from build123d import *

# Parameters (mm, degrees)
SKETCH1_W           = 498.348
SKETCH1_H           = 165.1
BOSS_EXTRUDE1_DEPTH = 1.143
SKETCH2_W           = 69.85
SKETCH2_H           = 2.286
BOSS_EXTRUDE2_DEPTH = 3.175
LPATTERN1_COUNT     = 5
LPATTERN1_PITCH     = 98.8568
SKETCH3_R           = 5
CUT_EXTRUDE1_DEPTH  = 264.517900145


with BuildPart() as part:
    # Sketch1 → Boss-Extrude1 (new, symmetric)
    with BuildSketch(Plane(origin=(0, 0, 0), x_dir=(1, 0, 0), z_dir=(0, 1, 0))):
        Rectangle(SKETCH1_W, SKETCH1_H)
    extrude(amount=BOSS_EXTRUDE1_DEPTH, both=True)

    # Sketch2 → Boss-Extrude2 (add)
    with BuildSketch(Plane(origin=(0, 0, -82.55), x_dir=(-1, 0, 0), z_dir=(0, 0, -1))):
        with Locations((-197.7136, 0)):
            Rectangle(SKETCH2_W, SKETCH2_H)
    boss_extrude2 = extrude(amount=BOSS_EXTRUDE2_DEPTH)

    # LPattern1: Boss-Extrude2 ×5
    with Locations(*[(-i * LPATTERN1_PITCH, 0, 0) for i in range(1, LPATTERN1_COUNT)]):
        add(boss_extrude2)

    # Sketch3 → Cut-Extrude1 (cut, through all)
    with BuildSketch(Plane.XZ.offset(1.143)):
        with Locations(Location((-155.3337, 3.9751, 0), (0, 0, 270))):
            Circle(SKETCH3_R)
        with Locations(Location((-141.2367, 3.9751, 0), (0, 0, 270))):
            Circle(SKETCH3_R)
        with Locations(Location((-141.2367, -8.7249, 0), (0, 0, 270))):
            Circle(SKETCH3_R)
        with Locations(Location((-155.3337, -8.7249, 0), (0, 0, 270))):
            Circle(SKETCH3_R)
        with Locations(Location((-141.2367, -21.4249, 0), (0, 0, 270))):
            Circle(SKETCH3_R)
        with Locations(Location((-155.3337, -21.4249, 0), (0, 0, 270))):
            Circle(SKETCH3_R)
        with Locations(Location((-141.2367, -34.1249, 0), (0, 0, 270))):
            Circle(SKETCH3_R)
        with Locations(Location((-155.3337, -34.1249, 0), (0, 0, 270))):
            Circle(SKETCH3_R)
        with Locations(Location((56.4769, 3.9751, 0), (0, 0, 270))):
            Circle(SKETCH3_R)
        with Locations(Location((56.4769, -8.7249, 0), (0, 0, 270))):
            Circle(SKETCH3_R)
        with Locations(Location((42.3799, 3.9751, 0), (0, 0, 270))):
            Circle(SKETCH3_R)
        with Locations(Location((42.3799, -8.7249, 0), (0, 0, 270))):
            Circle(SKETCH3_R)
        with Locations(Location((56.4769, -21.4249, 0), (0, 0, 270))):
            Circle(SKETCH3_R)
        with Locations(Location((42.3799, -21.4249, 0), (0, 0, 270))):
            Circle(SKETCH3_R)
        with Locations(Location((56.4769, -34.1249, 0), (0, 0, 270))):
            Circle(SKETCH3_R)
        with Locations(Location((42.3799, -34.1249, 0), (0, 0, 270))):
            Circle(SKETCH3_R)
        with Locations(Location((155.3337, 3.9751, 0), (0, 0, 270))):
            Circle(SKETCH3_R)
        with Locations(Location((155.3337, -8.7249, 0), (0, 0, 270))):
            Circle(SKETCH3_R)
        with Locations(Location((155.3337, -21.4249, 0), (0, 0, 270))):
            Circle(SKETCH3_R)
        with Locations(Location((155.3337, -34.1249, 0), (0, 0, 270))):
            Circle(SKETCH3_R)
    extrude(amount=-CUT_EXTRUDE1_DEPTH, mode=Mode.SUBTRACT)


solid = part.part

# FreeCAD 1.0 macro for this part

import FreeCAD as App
import Part
import Sketcher
from FreeCAD import Vector
Q = App.Units.Quantity

doc = App.newDocument("Part")
body = doc.addObject("PartDesign::Body", "Body")

# Sketch on XZ plane
sketch1 = body.newObject("Sketcher::SketchObject", "Sketch")
sketch1.AttachmentSupport = (doc.getObject("XZ_Plane"), [""])
sketch1.MapMode = "FlatFace"
sketch1.addGeometry(Part.LineSegment(Vector(-249, -83, 0), Vector(-249, 83, 0)), False)
sketch1.addGeometry(Part.LineSegment(Vector(-249, 83, 0), Vector(249, 83, 0)), False)
sketch1.addGeometry(Part.LineSegment(Vector(249, 83, 0), Vector(249, -83, 0)), False)
sketch1.addGeometry(Part.LineSegment(Vector(249, -83, 0), Vector(-249, -83, 0)), False)
sketch1.addConstraint(Sketcher.Constraint("Coincident", 0, 2, 1, 1))
sketch1.addConstraint(Sketcher.Constraint("Coincident", 1, 2, 2, 1))
sketch1.addConstraint(Sketcher.Constraint("Coincident", 2, 2, 3, 1))
sketch1.addConstraint(Sketcher.Constraint("Coincident", 3, 2, 0, 1))
sketch1.addConstraint(Sketcher.Constraint("Vertical", 0))
sketch1.addConstraint(Sketcher.Constraint("Horizontal", 1))
sketch1.addConstraint(Sketcher.Constraint("Vertical", 2))
sketch1.addConstraint(Sketcher.Constraint("Horizontal", 3))
sketch1.addConstraint(Sketcher.Constraint("Symmetric", 0, 2, 2, 2, -1, 1))
sketch1.addConstraint(Sketcher.Constraint("DistanceY", 0, 1, 0, 2, Q("6.5 in")))
sketch1.addConstraint(Sketcher.Constraint("DistanceX", 1, 1, 1, 2, Q("19.62 in")))
pad1 = body.newObject("PartDesign::Pad", "Pad")
pad1.Profile = sketch1
pad1.Length = Q("0.09 in")
pad1.Midplane = True

# Sketch on XY plane
sketch2 = body.newObject("Sketcher::SketchObject", "Sketch001")
sketch2.AttachmentSupport = (doc.getObject("XY_Plane"), [""])
sketch2.MapMode = "FlatFace"
sketch2.AttachmentOffset = App.Placement(Vector(0, 0, -3.25 * 25.4), App.Rotation())
sketch2.addGeometry(Part.LineSegment(Vector(232.6, 1.1, 0), Vector(232.6, -1.1, 0)), False)
sketch2.addGeometry(Part.LineSegment(Vector(232.6, -1.1, 0), Vector(162.8, -1.1, 0)), False)
sketch2.addGeometry(Part.LineSegment(Vector(162.8, -1.1, 0), Vector(162.8, 1.1, 0)), False)
sketch2.addGeometry(Part.LineSegment(Vector(162.8, 1.1, 0), Vector(232.6, 1.1, 0)), False)
sketch2.addConstraint(Sketcher.Constraint("Coincident", 0, 2, 1, 1))
sketch2.addConstraint(Sketcher.Constraint("Coincident", 1, 2, 2, 1))
sketch2.addConstraint(Sketcher.Constraint("Coincident", 2, 2, 3, 1))
sketch2.addConstraint(Sketcher.Constraint("Coincident", 3, 2, 0, 1))
sketch2.addConstraint(Sketcher.Constraint("Vertical", 0))
sketch2.addConstraint(Sketcher.Constraint("Horizontal", 1))
sketch2.addConstraint(Sketcher.Constraint("Vertical", 2))
sketch2.addConstraint(Sketcher.Constraint("Horizontal", 3))
sketch2.addConstraint(Sketcher.Constraint("DistanceX", 1, 2, 1, 1, Q("2.75 in")))
sketch2.addConstraint(Sketcher.Constraint("DistanceY", 0, 2, 0, 1, Q("0.09 in")))
sketch2.addConstraint(Sketcher.Constraint("DistanceX", -1, 1, 0, 2, Q("9.159 in")))
sketch2.addConstraint(Sketcher.Constraint("DistanceY", 0, 2, -1, 1, Q("0.045 in")))
pad2 = body.newObject("PartDesign::Pad", "Pad001")
pad2.Profile = sketch2
pad2.Length = Q("0.125 in")
pad2.Reversed = True
doc.recompute()

linearpattern = body.newObject("PartDesign::LinearPattern", "LinearPattern")
linearpattern.Originals = [pad2]
linearpattern.Direction = (doc.getObject("X_Axis"), [""])
linearpattern.Mode = "offset"
linearpattern.Offset = Q("3.892 in")
linearpattern.Occurrences = 5
linearpattern.Reversed = True
body.Tip = linearpattern

# Sketch on XZ plane
sketch3 = body.newObject("Sketcher::SketchObject", "Sketch002")
sketch3.AttachmentSupport = (doc.getObject("XZ_Plane"), [""])
sketch3.MapMode = "FlatFace"
sketch3.AttachmentOffset = App.Placement(Vector(0, 0, 0.045 * 25.4), App.Rotation())
sketch3.addGeometry(Part.Circle(Vector(-155, 4, 0), Vector(0, 0, 1), 5), False)
sketch3.addGeometry(Part.Circle(Vector(-141, 4, 0), Vector(0, 0, 1), 5), False)
sketch3.addGeometry(Part.Circle(Vector(-141, -9, 0), Vector(0, 0, 1), 5), False)
sketch3.addGeometry(Part.Circle(Vector(-155, -9, 0), Vector(0, 0, 1), 5), False)
sketch3.addGeometry(Part.Circle(Vector(-141, -21, 0), Vector(0, 0, 1), 5), False)
sketch3.addGeometry(Part.Circle(Vector(-155, -21, 0), Vector(0, 0, 1), 5), False)
sketch3.addGeometry(Part.Circle(Vector(-141, -34, 0), Vector(0, 0, 1), 5), False)
sketch3.addGeometry(Part.Circle(Vector(-155, -34, 0), Vector(0, 0, 1), 5), False)
sketch3.addGeometry(Part.Circle(Vector(56, 4, 0), Vector(0, 0, 1), 5), False)
sketch3.addGeometry(Part.Circle(Vector(56, -9, 0), Vector(0, 0, 1), 5), False)
sketch3.addGeometry(Part.Circle(Vector(42, 4, 0), Vector(0, 0, 1), 5), False)
sketch3.addGeometry(Part.Circle(Vector(42, -9, 0), Vector(0, 0, 1), 5), False)
sketch3.addGeometry(Part.Circle(Vector(56, -21, 0), Vector(0, 0, 1), 5), False)
sketch3.addGeometry(Part.Circle(Vector(42, -21, 0), Vector(0, 0, 1), 5), False)
sketch3.addGeometry(Part.Circle(Vector(56, -34, 0), Vector(0, 0, 1), 5), False)
sketch3.addGeometry(Part.Circle(Vector(42, -34, 0), Vector(0, 0, 1), 5), False)
sketch3.addGeometry(Part.Circle(Vector(155, 4, 0), Vector(0, 0, 1), 5), False)
sketch3.addGeometry(Part.Circle(Vector(155, -9, 0), Vector(0, 0, 1), 5), False)
sketch3.addGeometry(Part.Circle(Vector(155, -21, 0), Vector(0, 0, 1), 5), False)
sketch3.addGeometry(Part.Circle(Vector(155, -34, 0), Vector(0, 0, 1), 5), False)
sketch3.addConstraint(Sketcher.Constraint("Equal", 0, 1))
sketch3.addConstraint(Sketcher.Constraint("Equal", 1, 2))
sketch3.addConstraint(Sketcher.Constraint("Equal", 2, 3))
sketch3.addConstraint(Sketcher.Constraint("Equal", 3, 4))
sketch3.addConstraint(Sketcher.Constraint("Equal", 4, 5))
sketch3.addConstraint(Sketcher.Constraint("Equal", 5, 6))
sketch3.addConstraint(Sketcher.Constraint("Equal", 6, 7))
sketch3.addConstraint(Sketcher.Constraint("Equal", 7, 8))
sketch3.addConstraint(Sketcher.Constraint("Equal", 8, 9))
sketch3.addConstraint(Sketcher.Constraint("Equal", 9, 10))
sketch3.addConstraint(Sketcher.Constraint("Equal", 10, 11))
sketch3.addConstraint(Sketcher.Constraint("Equal", 11, 12))
sketch3.addConstraint(Sketcher.Constraint("Equal", 12, 13))
sketch3.addConstraint(Sketcher.Constraint("Equal", 13, 14))
sketch3.addConstraint(Sketcher.Constraint("Equal", 14, 15))
sketch3.addConstraint(Sketcher.Constraint("Equal", 15, 16))
sketch3.addConstraint(Sketcher.Constraint("Equal", 16, 17))
sketch3.addConstraint(Sketcher.Constraint("Equal", 17, 18))
sketch3.addConstraint(Sketcher.Constraint("Equal", 18, 19))
sketch3.addConstraint(Sketcher.Constraint("Symmetric", 0, 3, 16, 3, -2))
sketch3.addConstraint(Sketcher.Constraint("Symmetric", 3, 3, 17, 3, -2))
sketch3.addConstraint(Sketcher.Constraint("Symmetric", 5, 3, 18, 3, -2))
sketch3.addConstraint(Sketcher.Constraint("Symmetric", 7, 3, 19, 3, -2))
sketch3.addConstraint(Sketcher.Constraint("Horizontal", 0, 3, 1, 3))
sketch3.addConstraint(Sketcher.Constraint("Horizontal", 2, 3, 3, 3))
sketch3.addConstraint(Sketcher.Constraint("Horizontal", 4, 3, 5, 3))
sketch3.addConstraint(Sketcher.Constraint("Horizontal", 6, 3, 7, 3))
sketch3.addConstraint(Sketcher.Constraint("Horizontal", 1, 3, 8, 3))
sketch3.addConstraint(Sketcher.Constraint("Horizontal", 3, 3, 9, 3))
sketch3.addConstraint(Sketcher.Constraint("Horizontal", 8, 3, 10, 3))
sketch3.addConstraint(Sketcher.Constraint("Horizontal", 9, 3, 11, 3))
sketch3.addConstraint(Sketcher.Constraint("Horizontal", 5, 3, 12, 3))
sketch3.addConstraint(Sketcher.Constraint("Horizontal", 12, 3, 13, 3))
sketch3.addConstraint(Sketcher.Constraint("Horizontal", 7, 3, 14, 3))
sketch3.addConstraint(Sketcher.Constraint("Horizontal", 14, 3, 15, 3))
sketch3.addConstraint(Sketcher.Constraint("Vertical", 1, 3, 2, 3))
sketch3.addConstraint(Sketcher.Constraint("Vertical", 0, 3, 3, 3))
sketch3.addConstraint(Sketcher.Constraint("Vertical", 2, 3, 4, 3))
sketch3.addConstraint(Sketcher.Constraint("Vertical", 3, 3, 5, 3))
sketch3.addConstraint(Sketcher.Constraint("Vertical", 4, 3, 6, 3))
sketch3.addConstraint(Sketcher.Constraint("Vertical", 5, 3, 7, 3))
sketch3.addConstraint(Sketcher.Constraint("Vertical", 8, 3, 9, 3))
sketch3.addConstraint(Sketcher.Constraint("Vertical", 10, 3, 11, 3))
sketch3.addConstraint(Sketcher.Constraint("Vertical", 9, 3, 12, 3))
sketch3.addConstraint(Sketcher.Constraint("Vertical", 11, 3, 13, 3))
sketch3.addConstraint(Sketcher.Constraint("Vertical", 12, 3, 14, 3))
sketch3.addConstraint(Sketcher.Constraint("Vertical", 13, 3, 15, 3))
sketch3.addConstraint(Sketcher.Constraint("DistanceY", 4, 3, 1, 3, Q("1 in")))
sketch3.addConstraint(Sketcher.Constraint("DistanceY", 6, 3, 2, 3, Q("1 in")))
sketch3.addConstraint(Sketcher.Constraint("DistanceY", 2, 3, 1, 3, Q("0.5 in")))
sketch3.addConstraint(Sketcher.Constraint("Diameter", 0, 10.0))
sketch3.addConstraint(Sketcher.Constraint("DistanceX", 0, 3, 1, 3, Q("0.555 in")))
sketch3.addConstraint(Sketcher.Constraint("DistanceX", 1, 3, 8, 3, Q("7.784 in")))
sketch3.addConstraint(Sketcher.Constraint("DistanceX", 10, 3, 8, 3, Q("0.555 in")))
sketch3.addConstraint(Sketcher.Constraint("DistanceX", 8, 3, 16, 3, Q("3.892 in")))
sketch3.addConstraint(Sketcher.Constraint("DistanceY", -1, 1, 0, 3, Q("0.1565 in")))
pocket1 = body.newObject("PartDesign::Pocket", "Pocket")
pocket1.Profile = sketch3
pocket1.Type = "ThroughAll"

doc.recompute()
